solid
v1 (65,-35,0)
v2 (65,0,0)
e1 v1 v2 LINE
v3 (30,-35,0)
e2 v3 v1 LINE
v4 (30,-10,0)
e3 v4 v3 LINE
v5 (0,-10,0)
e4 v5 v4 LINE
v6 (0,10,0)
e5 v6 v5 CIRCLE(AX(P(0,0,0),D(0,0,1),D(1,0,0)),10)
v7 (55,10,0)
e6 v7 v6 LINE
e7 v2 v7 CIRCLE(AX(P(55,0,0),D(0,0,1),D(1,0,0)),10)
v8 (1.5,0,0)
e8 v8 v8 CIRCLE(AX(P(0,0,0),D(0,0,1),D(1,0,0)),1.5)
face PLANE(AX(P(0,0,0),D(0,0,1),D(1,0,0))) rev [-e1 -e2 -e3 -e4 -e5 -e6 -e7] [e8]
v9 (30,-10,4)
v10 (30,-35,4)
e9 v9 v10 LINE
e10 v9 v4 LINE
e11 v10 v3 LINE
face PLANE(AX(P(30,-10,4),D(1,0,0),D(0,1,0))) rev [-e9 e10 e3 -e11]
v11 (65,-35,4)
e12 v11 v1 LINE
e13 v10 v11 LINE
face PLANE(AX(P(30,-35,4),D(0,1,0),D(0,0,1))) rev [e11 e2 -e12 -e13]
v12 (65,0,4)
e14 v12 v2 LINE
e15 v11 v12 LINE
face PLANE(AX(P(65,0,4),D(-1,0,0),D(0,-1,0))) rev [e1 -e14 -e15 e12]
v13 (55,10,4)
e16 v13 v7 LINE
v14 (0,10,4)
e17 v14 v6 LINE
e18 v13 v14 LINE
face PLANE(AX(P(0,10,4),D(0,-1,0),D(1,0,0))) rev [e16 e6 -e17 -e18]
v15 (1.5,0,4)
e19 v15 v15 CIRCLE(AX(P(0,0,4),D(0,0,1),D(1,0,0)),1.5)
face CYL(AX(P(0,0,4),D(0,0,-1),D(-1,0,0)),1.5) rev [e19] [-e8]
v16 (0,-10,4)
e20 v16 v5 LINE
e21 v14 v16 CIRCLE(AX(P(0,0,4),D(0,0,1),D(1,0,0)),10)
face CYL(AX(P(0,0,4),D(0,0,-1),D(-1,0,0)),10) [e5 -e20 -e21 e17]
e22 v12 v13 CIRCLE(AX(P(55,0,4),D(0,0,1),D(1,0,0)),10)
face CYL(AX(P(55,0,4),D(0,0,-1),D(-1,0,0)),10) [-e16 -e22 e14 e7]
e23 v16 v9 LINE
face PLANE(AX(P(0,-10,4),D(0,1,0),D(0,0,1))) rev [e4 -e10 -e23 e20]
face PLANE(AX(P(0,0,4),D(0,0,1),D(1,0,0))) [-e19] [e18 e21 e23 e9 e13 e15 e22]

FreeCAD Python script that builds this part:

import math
import FreeCAD as App
import Part
import Sketcher

V = App.Vector

doc = App.newDocument("Part")
body = doc.addObject("PartDesign::Body", "Body")

# Sketch on XY plane
sketch1 = doc.addObject("Sketcher::SketchObject", "Sketch")
body.addObject(sketch1)
sketch1.AttachmentSupport = (doc.XY_Plane, [""])
sketch1.MapMode = "FlatFace"
sketch1.addGeometry(Part.LineSegment(V(55, 10, 0), V(0, 10, 0)), False)
sketch1.addGeometry(Part.ArcOfCircle(Part.Circle(V(0, 0, 0), V(0, 0, 1), 10), math.radians(90), math.radians(270)), False)
sketch1.addGeometry(Part.LineSegment(V(0, -10, 0), V(30, -10, 0)), False)
sketch1.addGeometry(Part.LineSegment(V(30, -10, 0), V(30, -35, 0)), False)
sketch1.addGeometry(Part.LineSegment(V(30, -35, 0), V(65, -35, 0)), False)
sketch1.addGeometry(Part.LineSegment(V(65, -35, 0), V(65, 0, 0)), False)
sketch1.addGeometry(Part.ArcOfCircle(Part.Circle(V(55, 0, 0), V(0, 0, 1), 10), math.radians(0), math.radians(90)), False)
sketch1.addGeometry(Part.Circle(V(0, 0, 0), V(0, 0, 1), 1.5), False)
sketch1.addConstraint(Sketcher.Constraint("Tangent", 0, 2, 1, 1))
sketch1.addConstraint(Sketcher.Constraint("Tangent", 1, 2, 2, 1))
sketch1.addConstraint(Sketcher.Constraint("Coincident", 2, 2, 3, 1))
sketch1.addConstraint(Sketcher.Constraint("Coincident", 3, 2, 4, 1))
sketch1.addConstraint(Sketcher.Constraint("Coincident", 4, 2, 5, 1))
sketch1.addConstraint(Sketcher.Constraint("Tangent", 5, 2, 6, 1))
sketch1.addConstraint(Sketcher.Constraint("Tangent", 6, 2, 0, 1))
sketch1.addConstraint(Sketcher.Constraint("Horizontal", 0))
sketch1.addConstraint(Sketcher.Constraint("Horizontal", 2))
sketch1.addConstraint(Sketcher.Constraint("Vertical", 3))
sketch1.addConstraint(Sketcher.Constraint("Horizontal", 4))
sketch1.addConstraint(Sketcher.Constraint("Vertical", 5))
sketch1.addConstraint(Sketcher.Constraint("Coincident", 1, 3, -1, 1))
sketch1.addConstraint(Sketcher.Constraint("Coincident", 7, 3, -1, 1))
sketch1.addConstraint(Sketcher.Constraint("Equal", 1, 6))
sketch1.addConstraint(Sketcher.Constraint("Equal", 4, 5))
sketch1.addConstraint(Sketcher.Constraint("Diameter", 7, 3.0))
sketch1.addConstraint(Sketcher.Constraint("Radius", 1, 10.0))
sketch1.addConstraint(Sketcher.Constraint("DistanceX", 0, 2, 0, 1, 55.0))
sketch1.addConstraint(Sketcher.Constraint("DistanceX", 2, 1, 2, 2, 30.0))
pad1 = doc.addObject("PartDesign::Pad", "Pad")
body.addObject(pad1)
pad1.Profile = sketch1
pad1.Length = 4

doc.recompute()
